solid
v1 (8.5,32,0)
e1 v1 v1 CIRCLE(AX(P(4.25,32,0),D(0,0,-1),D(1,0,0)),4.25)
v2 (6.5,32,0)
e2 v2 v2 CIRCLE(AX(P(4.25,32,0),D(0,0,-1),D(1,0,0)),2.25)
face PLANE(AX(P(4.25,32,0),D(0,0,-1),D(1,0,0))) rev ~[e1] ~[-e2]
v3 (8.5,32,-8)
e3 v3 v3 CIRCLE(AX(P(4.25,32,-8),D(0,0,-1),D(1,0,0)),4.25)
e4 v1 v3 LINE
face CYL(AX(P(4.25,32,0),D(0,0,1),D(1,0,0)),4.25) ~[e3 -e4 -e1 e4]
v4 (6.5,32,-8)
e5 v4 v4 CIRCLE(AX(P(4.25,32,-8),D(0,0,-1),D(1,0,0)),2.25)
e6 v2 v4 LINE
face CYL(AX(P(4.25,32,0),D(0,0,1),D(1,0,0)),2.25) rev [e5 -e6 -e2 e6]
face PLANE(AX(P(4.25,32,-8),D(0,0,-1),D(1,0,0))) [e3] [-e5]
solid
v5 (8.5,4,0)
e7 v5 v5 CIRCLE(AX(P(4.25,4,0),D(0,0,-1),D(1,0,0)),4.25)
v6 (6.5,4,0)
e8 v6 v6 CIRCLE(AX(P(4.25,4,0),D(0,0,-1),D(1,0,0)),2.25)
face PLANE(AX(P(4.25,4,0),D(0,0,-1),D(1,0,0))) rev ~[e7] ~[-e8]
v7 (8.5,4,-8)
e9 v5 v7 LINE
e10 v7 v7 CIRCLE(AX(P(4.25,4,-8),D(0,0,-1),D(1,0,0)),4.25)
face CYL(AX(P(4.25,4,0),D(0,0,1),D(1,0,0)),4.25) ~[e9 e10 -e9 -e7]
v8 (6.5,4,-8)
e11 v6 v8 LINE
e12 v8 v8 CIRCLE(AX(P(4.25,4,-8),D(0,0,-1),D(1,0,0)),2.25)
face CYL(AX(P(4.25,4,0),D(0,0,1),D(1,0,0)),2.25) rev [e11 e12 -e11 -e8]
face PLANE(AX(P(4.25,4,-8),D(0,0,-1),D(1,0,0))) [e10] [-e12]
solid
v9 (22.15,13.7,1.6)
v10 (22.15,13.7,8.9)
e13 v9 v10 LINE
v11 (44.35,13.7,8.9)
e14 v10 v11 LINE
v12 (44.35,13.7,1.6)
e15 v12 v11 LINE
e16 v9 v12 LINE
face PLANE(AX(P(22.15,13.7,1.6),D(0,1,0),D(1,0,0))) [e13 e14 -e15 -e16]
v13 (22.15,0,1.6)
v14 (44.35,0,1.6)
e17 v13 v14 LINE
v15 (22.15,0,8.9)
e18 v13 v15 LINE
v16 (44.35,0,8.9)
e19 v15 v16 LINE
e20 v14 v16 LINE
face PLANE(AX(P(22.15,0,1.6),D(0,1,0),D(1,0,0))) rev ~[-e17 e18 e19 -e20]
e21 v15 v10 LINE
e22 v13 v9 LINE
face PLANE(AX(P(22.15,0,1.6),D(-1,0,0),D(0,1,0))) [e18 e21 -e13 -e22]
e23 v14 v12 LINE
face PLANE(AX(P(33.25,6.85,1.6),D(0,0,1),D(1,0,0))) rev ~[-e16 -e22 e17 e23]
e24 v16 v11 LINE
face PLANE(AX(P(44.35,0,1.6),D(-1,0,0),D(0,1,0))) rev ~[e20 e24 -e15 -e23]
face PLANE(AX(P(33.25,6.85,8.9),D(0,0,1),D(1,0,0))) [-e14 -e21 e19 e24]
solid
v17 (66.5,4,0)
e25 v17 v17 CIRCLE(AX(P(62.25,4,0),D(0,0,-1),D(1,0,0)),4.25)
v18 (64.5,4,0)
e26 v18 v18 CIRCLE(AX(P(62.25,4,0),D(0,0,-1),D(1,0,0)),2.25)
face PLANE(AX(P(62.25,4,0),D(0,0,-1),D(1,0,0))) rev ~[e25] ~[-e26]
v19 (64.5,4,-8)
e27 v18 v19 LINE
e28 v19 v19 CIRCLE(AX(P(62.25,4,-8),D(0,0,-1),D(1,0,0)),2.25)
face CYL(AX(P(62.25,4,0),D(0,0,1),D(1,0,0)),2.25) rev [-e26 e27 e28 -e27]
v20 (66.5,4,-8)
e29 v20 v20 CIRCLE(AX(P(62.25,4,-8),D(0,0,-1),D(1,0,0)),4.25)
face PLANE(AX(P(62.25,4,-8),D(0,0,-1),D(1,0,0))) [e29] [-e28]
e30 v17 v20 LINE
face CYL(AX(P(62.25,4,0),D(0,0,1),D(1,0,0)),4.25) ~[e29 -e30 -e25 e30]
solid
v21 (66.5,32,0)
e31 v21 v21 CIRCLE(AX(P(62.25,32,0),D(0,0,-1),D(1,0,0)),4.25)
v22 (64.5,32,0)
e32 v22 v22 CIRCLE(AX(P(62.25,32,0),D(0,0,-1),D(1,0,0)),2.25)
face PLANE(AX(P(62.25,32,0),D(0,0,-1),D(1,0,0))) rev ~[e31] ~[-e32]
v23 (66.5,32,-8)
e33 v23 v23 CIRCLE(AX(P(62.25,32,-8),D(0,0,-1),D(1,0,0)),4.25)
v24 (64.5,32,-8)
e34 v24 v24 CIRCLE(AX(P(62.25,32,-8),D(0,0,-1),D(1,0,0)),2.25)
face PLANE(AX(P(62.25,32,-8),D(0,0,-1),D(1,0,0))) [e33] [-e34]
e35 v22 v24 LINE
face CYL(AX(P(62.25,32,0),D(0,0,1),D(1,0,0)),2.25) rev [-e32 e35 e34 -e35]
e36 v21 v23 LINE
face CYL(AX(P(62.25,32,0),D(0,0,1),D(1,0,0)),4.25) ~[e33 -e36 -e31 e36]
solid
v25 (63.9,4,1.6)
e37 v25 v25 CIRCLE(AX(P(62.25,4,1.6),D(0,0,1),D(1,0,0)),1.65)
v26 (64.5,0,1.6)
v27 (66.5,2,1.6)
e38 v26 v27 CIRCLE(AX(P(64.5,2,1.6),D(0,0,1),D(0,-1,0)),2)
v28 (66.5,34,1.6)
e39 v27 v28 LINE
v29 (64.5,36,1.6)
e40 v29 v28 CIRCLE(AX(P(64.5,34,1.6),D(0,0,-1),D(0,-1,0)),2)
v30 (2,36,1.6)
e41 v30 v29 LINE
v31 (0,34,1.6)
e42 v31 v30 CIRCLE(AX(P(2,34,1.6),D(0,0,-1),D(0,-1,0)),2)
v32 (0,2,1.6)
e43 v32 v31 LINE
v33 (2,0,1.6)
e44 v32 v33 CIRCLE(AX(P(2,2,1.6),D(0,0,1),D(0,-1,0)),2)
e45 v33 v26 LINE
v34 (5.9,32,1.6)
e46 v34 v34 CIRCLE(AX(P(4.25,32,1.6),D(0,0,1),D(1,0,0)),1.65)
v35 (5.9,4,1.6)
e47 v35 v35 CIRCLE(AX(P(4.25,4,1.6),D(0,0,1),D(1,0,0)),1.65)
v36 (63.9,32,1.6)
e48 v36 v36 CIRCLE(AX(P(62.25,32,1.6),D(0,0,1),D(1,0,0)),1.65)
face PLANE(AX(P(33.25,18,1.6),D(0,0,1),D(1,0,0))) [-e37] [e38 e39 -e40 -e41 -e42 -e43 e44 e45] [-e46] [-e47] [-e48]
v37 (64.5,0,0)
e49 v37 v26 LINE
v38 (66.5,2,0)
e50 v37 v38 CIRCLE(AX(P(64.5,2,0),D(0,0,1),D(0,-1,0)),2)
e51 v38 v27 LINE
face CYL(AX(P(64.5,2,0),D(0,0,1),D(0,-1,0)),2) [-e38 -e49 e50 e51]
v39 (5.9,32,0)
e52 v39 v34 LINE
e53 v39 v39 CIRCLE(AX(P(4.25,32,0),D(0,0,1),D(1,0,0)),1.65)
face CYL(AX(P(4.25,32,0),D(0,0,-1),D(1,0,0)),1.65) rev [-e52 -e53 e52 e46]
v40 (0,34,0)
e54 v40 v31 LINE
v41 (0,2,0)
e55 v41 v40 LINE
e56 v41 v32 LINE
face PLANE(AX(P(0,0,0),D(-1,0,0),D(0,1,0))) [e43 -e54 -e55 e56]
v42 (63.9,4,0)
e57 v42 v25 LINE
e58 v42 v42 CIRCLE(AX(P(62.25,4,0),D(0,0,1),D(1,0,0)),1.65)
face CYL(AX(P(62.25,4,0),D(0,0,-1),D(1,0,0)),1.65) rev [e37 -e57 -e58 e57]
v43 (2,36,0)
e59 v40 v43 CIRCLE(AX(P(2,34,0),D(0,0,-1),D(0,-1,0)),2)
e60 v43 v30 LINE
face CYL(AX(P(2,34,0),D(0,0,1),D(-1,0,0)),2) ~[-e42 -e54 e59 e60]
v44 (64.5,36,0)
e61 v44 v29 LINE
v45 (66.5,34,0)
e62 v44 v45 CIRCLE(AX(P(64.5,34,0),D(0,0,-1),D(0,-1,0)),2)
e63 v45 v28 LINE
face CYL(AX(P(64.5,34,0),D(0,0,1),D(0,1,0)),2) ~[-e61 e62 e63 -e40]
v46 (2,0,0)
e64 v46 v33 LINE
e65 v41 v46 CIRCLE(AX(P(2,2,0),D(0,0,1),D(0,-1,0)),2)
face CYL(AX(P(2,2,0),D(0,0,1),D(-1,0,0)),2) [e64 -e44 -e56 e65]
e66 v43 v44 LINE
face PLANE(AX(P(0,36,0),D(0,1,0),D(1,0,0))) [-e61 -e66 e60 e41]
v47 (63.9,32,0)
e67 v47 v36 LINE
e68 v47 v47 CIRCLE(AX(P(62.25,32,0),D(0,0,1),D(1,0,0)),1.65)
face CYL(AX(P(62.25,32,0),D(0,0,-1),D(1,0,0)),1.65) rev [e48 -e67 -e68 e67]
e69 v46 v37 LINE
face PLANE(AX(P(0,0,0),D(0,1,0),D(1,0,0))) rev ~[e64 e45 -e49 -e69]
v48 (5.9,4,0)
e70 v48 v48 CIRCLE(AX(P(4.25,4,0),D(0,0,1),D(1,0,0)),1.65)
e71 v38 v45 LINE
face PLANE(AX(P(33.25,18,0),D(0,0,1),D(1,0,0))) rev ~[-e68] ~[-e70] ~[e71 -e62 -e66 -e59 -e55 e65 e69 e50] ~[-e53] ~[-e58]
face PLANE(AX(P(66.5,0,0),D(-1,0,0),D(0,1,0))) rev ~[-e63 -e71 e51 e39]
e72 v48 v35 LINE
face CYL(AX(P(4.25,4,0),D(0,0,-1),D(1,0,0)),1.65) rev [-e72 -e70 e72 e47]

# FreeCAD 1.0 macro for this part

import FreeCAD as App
import Part
import Sketcher


def edges_at(feature, points):
    """Names of the edges that pass closest to the given points."""
    edges = feature.Shape.Edges
    near = lambda p: min(range(len(edges)), key=lambda i: edges[i].distToShape(Part.Vertex(*p))[0])
    return sorted({f"Edge{near(p) + 1}" for p in points})


def add_polygon(sketch, points):
    """Adds a closed chain of lines whose ends are joined by coincident constraints."""
    first, n = sketch.GeometryCount, len(points)
    for a, b in zip(points, points[1:] + points[:1]):
        sketch.addGeometry(Part.LineSegment(App.Vector(*a, 0), App.Vector(*b, 0)), False)
    for i in range(n):
        sketch.addConstraint(Sketcher.Constraint("Coincident", first + i, 2, first + (i + 1) % n, 1))

doc = App.newDocument("Part")
body = doc.addObject("PartDesign::Body", "Body")

# Sketch on XY plane
sketch1 = body.newObject("Sketcher::SketchObject", "Sketch")
sketch1.AttachmentSupport = (doc.getObject("XY_Plane"), [""])
sketch1.MapMode = "FlatFace"
add_polygon(sketch1, [(0, 36), (0, 0), (66.5, 0), (66.5, 36)])  # lines 0-3
sketch1.addGeometry(Part.Circle(App.Vector(4.25, 4, 0), App.Vector(0, 0, 1), 1.65), False)  # 4
sketch1.addGeometry(Part.Circle(App.Vector(62.25, 4, 0), App.Vector(0, 0, 1), 1.65), False)  # 5
sketch1.addGeometry(Part.Circle(App.Vector(4.25, 32, 0), App.Vector(0, 0, 1), 1.65), False)  # 6
sketch1.addGeometry(Part.Circle(App.Vector(62.25, 32, 0), App.Vector(0, 0, 1), 1.65), False)  # 7
sketch1.addConstraint(Sketcher.Constraint("Vertical", 0))
sketch1.addConstraint(Sketcher.Constraint("Horizontal", 1))
sketch1.addConstraint(Sketcher.Constraint("Vertical", 2))
sketch1.addConstraint(Sketcher.Constraint("Horizontal", 3))
sketch1.addConstraint(Sketcher.Constraint("Coincident", 0, 2, -1, 1))
sketch1.addConstraint(Sketcher.Constraint("Equal", 4, 5))
sketch1.addConstraint(Sketcher.Constraint("Equal", 5, 6))
sketch1.addConstraint(Sketcher.Constraint("Equal", 6, 7))
sketch1.addConstraint(Sketcher.Constraint("Horizontal", 4, 3, 5, 3))
sketch1.addConstraint(Sketcher.Constraint("Horizontal", 6, 3, 7, 3))
sketch1.addConstraint(Sketcher.Constraint("Vertical", 4, 3, 6, 3))
sketch1.addConstraint(Sketcher.Constraint("Vertical", 5, 3, 7, 3))
sketch1.addConstraint(Sketcher.Constraint("Diameter", 4, 3.3))
sketch1.addConstraint(Sketcher.Constraint("DistanceY", 0, 2, 0, 1, 36.0))
sketch1.addConstraint(Sketcher.Constraint("DistanceX", 1, 1, 1, 2, 66.5))
sketch1.addConstraint(Sketcher.Constraint("DistanceY", -1, 1, 4, 3, 4.0))
sketch1.addConstraint(Sketcher.Constraint("DistanceY", -1, 1, 6, 3, 32.0))
sketch1.addConstraint(Sketcher.Constraint("DistanceX", 4, 3, 5, 3, 58.0))
sketch1.addConstraint(Sketcher.Constraint("DistanceX", -1, 1, 4, 3, 4.25))
pad1 = body.newObject("PartDesign::Pad", "Pad")
pad1.Profile = sketch1
pad1.Length = 1.6
doc.recompute()

fillet = body.newObject("PartDesign::Fillet", "Fillet")
fillet.Base = (pad1, edges_at(pad1, [
    (66.5, 0, 0.8),
    (0, 0, 0.8),
    (0, 36, 0.8),
    (66.5, 36, 0.8),
]))
fillet.Radius = 2
body2 = doc.addObject("PartDesign::Body", "Body001")

# Sketch on XY plane
sketch2 = body2.newObject("Sketcher::SketchObject", "Sketch001")
sketch2.AttachmentSupport = (doc.getObject("XY_Plane001"), [""])
sketch2.MapMode = "FlatFace"
sketch2.AttachmentOffset = App.Placement(App.Vector(0, 0, 1.6), App.Rotation())
add_polygon(sketch2, [(22.15, 13.7), (22.15, 0), (44.35, 0), (44.35, 13.7)])  # lines 0-3
sketch2.addConstraint(Sketcher.Constraint("Vertical", 0))
sketch2.addConstraint(Sketcher.Constraint("Horizontal", 1))
sketch2.addConstraint(Sketcher.Constraint("Vertical", 2))
sketch2.addConstraint(Sketcher.Constraint("Horizontal", 3))
sketch2.addConstraint(Sketcher.Constraint("PointOnObject", 0, 2, -1))
sketch2.addConstraint(Sketcher.Constraint("DistanceX", 1, 1, 1, 2, 22.2))
sketch2.addConstraint(Sketcher.Constraint("DistanceY", 0, 2, 0, 1, 13.7))
sketch2.addConstraint(Sketcher.Constraint("DistanceX", -1, 1, 0, 2, 22.15))
pad2 = body2.newObject("PartDesign::Pad", "Pad001")
pad2.Profile = sketch2
pad2.Length = 7.3
body3 = doc.addObject("PartDesign::Body", "Body002")
body3.AllowCompound = True

# Sketch on XY plane
sketch3 = body3.newObject("Sketcher::SketchObject", "Sketch002")
sketch3.AttachmentSupport = (doc.getObject("XY_Plane002"), [""])
sketch3.MapMode = "FlatFace"
sketch3.addGeometry(Part.Circle(App.Vector(4.25, 4, 0), App.Vector(0, 0, 1), 4.25), False)
sketch3.addGeometry(Part.Circle(App.Vector(4.25, 4, 0), App.Vector(0, 0, 1), 2.25), False)
sketch3.addGeometry(Part.Circle(App.Vector(62.25, 4, 0), App.Vector(0, 0, 1), 4.25), False)
sketch3.addGeometry(Part.Circle(App.Vector(62.25, 4, 0), App.Vector(0, 0, 1), 2.25), False)
sketch3.addGeometry(Part.Circle(App.Vector(4.25, 32, 0), App.Vector(0, 0, 1), 4.25), False)
sketch3.addGeometry(Part.Circle(App.Vector(4.25, 32, 0), App.Vector(0, 0, 1), 2.25), False)
sketch3.addGeometry(Part.Circle(App.Vector(62.25, 32, 0), App.Vector(0, 0, 1), 4.25), False)
sketch3.addGeometry(Part.Circle(App.Vector(62.25, 32, 0), App.Vector(0, 0, 1), 2.25), False)
sketch3.addConstraint(Sketcher.Constraint("Coincident", 1, 3, 0, 3))
sketch3.addConstraint(Sketcher.Constraint("Coincident", 3, 3, 2, 3))
sketch3.addConstraint(Sketcher.Constraint("Coincident", 5, 3, 4, 3))
sketch3.addConstraint(Sketcher.Constraint("Coincident", 7, 3, 6, 3))
sketch3.addConstraint(Sketcher.Constraint("Equal", 0, 2))
sketch3.addConstraint(Sketcher.Constraint("Equal", 1, 3))
sketch3.addConstraint(Sketcher.Constraint("Equal", 2, 4))
sketch3.addConstraint(Sketcher.Constraint("Equal", 3, 5))
sketch3.addConstraint(Sketcher.Constraint("Equal", 4, 6))
sketch3.addConstraint(Sketcher.Constraint("Equal", 5, 7))
sketch3.addConstraint(Sketcher.Constraint("Horizontal", 1, 3, 2, 3))
sketch3.addConstraint(Sketcher.Constraint("Horizontal", 5, 3, 6, 3))
sketch3.addConstraint(Sketcher.Constraint("Vertical", 1, 3, 4, 3))
sketch3.addConstraint(Sketcher.Constraint("Vertical", 3, 3, 6, 3))
sketch3.addConstraint(Sketcher.Constraint("Diameter", 0, 8.5))
sketch3.addConstraint(Sketcher.Constraint("Diameter", 1, 4.5))
sketch3.addConstraint(Sketcher.Constraint("DistanceY", -1, 1, 0, 3, 4.0))
sketch3.addConstraint(Sketcher.Constraint("DistanceY", -1, 1, 4, 3, 32.0))
sketch3.addConstraint(Sketcher.Constraint("DistanceX", 0, 3, 2, 3, 58.0))
sketch3.addConstraint(Sketcher.Constraint("DistanceX", -1, 1, 0, 3, 4.25))
pad3 = body3.newObject("PartDesign::Pad", "Pad002")
pad3.Profile = sketch3
pad3.Length = 8
pad3.Reversed = True

doc.recompute()
